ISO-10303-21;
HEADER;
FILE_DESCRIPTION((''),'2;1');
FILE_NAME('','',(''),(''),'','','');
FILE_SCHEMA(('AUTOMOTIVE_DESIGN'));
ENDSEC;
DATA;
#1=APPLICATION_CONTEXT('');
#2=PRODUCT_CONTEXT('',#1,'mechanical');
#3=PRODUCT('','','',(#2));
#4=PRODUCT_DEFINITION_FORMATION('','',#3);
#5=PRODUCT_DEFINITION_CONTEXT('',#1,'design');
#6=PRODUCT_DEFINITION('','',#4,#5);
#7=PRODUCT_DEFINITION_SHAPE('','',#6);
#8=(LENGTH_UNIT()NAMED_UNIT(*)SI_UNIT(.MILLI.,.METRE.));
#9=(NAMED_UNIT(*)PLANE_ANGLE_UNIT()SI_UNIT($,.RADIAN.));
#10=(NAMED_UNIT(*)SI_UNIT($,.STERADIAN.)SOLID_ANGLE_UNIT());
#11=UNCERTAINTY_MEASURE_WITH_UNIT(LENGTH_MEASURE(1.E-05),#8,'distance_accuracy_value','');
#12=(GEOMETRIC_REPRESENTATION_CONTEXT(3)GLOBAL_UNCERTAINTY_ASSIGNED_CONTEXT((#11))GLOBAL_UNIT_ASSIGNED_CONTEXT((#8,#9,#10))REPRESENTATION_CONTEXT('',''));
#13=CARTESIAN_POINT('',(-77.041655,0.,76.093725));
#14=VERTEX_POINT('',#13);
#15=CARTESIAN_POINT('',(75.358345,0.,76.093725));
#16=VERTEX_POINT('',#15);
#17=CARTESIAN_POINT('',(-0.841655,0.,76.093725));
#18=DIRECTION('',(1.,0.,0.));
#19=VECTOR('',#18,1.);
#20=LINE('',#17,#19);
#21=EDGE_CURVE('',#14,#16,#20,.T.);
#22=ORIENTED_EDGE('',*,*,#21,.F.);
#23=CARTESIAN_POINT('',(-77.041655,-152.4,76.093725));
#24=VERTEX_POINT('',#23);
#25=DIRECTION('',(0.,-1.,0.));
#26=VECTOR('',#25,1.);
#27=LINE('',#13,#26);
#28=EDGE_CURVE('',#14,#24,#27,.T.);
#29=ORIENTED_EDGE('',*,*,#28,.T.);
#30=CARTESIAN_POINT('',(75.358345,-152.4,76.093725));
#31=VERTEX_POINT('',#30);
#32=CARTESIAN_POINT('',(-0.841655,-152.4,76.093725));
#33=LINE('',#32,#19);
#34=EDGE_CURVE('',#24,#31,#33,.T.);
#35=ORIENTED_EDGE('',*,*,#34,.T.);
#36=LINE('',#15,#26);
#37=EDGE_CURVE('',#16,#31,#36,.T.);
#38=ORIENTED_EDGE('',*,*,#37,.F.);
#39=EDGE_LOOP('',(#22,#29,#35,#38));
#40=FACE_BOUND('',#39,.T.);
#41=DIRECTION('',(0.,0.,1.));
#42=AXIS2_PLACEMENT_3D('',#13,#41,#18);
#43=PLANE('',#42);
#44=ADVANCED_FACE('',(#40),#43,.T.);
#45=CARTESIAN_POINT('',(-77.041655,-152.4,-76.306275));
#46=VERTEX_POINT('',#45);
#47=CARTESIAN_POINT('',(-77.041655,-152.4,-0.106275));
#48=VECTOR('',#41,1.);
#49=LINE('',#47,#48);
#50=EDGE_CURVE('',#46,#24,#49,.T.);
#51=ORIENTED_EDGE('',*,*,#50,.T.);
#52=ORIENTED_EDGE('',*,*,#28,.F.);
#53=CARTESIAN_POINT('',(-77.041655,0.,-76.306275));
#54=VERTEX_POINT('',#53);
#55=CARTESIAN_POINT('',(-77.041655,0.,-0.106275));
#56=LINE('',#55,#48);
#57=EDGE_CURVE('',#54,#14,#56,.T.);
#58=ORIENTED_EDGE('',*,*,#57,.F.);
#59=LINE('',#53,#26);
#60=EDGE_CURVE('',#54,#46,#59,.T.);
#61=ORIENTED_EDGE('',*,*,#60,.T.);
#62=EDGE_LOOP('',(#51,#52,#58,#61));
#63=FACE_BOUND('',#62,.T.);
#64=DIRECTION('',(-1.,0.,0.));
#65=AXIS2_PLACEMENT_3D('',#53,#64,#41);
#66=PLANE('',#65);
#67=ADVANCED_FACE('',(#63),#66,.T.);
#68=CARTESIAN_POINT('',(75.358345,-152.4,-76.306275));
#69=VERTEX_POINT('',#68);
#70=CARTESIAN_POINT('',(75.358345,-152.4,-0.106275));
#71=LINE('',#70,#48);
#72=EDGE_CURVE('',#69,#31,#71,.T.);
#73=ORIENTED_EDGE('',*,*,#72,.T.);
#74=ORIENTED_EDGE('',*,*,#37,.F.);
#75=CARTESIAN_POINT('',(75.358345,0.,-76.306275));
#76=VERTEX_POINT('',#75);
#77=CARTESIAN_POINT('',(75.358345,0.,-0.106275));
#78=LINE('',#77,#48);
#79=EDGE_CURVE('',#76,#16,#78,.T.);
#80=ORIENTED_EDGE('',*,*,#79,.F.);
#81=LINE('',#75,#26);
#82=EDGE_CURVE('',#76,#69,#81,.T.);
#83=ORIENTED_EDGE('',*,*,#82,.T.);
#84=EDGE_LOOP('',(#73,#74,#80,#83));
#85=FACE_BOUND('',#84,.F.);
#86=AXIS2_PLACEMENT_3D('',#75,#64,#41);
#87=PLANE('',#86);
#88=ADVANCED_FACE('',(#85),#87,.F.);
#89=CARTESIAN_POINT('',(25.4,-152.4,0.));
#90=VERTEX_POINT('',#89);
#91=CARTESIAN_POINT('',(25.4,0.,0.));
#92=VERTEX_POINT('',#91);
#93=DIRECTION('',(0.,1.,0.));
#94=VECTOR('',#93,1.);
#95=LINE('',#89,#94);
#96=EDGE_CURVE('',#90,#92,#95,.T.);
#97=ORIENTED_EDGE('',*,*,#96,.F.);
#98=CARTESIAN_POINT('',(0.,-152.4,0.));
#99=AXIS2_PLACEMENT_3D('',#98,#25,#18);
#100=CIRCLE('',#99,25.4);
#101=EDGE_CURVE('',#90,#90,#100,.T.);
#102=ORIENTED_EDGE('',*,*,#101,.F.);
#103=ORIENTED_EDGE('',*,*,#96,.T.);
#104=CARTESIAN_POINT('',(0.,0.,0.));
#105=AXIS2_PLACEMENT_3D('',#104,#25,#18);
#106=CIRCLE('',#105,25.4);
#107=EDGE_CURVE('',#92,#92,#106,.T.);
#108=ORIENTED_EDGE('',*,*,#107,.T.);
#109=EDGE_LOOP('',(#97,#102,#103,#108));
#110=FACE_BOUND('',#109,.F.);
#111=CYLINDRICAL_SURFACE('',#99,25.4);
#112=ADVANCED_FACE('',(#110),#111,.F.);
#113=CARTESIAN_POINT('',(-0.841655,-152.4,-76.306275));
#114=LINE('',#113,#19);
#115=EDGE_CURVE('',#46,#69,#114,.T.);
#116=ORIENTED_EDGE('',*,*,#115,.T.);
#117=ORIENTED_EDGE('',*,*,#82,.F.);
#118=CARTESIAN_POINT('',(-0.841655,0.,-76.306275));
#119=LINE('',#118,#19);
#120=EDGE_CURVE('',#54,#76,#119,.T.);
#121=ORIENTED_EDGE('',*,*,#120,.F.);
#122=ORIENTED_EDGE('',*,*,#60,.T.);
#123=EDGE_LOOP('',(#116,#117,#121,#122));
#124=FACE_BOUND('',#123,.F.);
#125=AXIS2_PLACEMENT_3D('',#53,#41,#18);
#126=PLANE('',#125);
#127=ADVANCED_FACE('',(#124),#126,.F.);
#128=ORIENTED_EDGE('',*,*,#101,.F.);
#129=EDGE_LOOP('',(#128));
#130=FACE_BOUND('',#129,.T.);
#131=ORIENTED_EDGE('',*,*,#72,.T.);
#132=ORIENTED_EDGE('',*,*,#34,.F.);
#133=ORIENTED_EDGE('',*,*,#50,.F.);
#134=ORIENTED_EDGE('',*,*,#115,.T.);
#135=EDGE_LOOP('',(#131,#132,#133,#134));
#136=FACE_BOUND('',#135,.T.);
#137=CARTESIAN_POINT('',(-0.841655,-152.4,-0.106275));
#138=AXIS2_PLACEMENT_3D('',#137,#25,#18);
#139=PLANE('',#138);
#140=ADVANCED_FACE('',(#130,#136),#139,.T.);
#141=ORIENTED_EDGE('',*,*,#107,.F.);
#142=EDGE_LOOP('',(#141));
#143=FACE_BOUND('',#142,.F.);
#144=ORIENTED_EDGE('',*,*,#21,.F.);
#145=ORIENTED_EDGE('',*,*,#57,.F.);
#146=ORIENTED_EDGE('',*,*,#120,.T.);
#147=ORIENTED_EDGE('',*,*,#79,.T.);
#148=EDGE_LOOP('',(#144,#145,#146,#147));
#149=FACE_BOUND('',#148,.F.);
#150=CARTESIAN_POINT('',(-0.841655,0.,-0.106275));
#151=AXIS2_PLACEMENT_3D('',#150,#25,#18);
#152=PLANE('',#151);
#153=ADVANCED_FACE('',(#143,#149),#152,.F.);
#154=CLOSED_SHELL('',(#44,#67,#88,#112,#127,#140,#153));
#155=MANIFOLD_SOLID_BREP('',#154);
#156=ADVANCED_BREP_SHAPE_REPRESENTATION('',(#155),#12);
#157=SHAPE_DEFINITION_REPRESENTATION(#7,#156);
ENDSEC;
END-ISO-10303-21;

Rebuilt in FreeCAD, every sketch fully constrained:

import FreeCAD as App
import Part
import Sketcher
from FreeCAD import Vector
Q = App.Units.Quantity


def add_polygon(sketch, points):
    """Adds a closed chain of lines whose ends are joined by coincident constraints."""
    first, n = sketch.GeometryCount, len(points)
    for a, b in zip(points, points[1:] + points[:1]):
        sketch.addGeometry(Part.LineSegment(App.Vector(*a, 0), App.Vector(*b, 0)), False)
    for i in range(n):
        sketch.addConstraint(Sketcher.Constraint("Coincident", first + i, 2, first + (i + 1) % n, 1))

doc = App.newDocument("Part")
body = doc.addObject("PartDesign::Body", "Body")

# Sketch on XZ plane
sketch1 = body.newObject("Sketcher::SketchObject", "Sketch")
sketch1.AttachmentSupport = (doc.getObject("XZ_Plane"), [""])
sketch1.MapMode = "FlatFace"
add_polygon(sketch1, [(-77.041655, 76.093725), (-77.041655, -76.306275), (75.358345, -76.306275), (75.358345, 76.093725)])  # lines 0-3
sketch1.addConstraint(Sketcher.Constraint("Vertical", 0))
sketch1.addConstraint(Sketcher.Constraint("Horizontal", 1))
sketch1.addConstraint(Sketcher.Constraint("Vertical", 2))
sketch1.addConstraint(Sketcher.Constraint("Horizontal", 3))
sketch1.addConstraint(Sketcher.Constraint("Equal", 3, 0))
sketch1.addConstraint(Sketcher.Constraint("DistanceX", 1, 1, 1, 2, Q("6 in")))
sketch1.addConstraint(Sketcher.Constraint("DistanceX", 0, 2, -1, 1, 77.041655))
sketch1.addConstraint(Sketcher.Constraint("DistanceY", 0, 2, -1, 1, 76.306275))
pad1 = body.newObject("PartDesign::Pad", "Pad")
pad1.Profile = sketch1
pad1.Length = Q("6 in")

# Sketch on XZ plane
sketch2 = body.newObject("Sketcher::SketchObject", "Sketch001")
sketch2.AttachmentSupport = (doc.getObject("XZ_Plane"), [""])
sketch2.MapMode = "FlatFace"
sketch2.AttachmentOffset = App.Placement(Vector(0, 0, 6 * 25.4), App.Rotation())
sketch2.addGeometry(Part.Circle(Vector(0, 0, 0), Vector(0, 0, 1), 25.4), False)
sketch2.addConstraint(Sketcher.Constraint("Coincident", 0, 3, -1, 1))
sketch2.addConstraint(Sketcher.Constraint("Diameter", 0, Q("2 in")))
pocket1 = body.newObject("PartDesign::Pocket", "Pocket")
pocket1.Profile = sketch2
pocket1.Length = Q("6 in")

doc.recompute()
